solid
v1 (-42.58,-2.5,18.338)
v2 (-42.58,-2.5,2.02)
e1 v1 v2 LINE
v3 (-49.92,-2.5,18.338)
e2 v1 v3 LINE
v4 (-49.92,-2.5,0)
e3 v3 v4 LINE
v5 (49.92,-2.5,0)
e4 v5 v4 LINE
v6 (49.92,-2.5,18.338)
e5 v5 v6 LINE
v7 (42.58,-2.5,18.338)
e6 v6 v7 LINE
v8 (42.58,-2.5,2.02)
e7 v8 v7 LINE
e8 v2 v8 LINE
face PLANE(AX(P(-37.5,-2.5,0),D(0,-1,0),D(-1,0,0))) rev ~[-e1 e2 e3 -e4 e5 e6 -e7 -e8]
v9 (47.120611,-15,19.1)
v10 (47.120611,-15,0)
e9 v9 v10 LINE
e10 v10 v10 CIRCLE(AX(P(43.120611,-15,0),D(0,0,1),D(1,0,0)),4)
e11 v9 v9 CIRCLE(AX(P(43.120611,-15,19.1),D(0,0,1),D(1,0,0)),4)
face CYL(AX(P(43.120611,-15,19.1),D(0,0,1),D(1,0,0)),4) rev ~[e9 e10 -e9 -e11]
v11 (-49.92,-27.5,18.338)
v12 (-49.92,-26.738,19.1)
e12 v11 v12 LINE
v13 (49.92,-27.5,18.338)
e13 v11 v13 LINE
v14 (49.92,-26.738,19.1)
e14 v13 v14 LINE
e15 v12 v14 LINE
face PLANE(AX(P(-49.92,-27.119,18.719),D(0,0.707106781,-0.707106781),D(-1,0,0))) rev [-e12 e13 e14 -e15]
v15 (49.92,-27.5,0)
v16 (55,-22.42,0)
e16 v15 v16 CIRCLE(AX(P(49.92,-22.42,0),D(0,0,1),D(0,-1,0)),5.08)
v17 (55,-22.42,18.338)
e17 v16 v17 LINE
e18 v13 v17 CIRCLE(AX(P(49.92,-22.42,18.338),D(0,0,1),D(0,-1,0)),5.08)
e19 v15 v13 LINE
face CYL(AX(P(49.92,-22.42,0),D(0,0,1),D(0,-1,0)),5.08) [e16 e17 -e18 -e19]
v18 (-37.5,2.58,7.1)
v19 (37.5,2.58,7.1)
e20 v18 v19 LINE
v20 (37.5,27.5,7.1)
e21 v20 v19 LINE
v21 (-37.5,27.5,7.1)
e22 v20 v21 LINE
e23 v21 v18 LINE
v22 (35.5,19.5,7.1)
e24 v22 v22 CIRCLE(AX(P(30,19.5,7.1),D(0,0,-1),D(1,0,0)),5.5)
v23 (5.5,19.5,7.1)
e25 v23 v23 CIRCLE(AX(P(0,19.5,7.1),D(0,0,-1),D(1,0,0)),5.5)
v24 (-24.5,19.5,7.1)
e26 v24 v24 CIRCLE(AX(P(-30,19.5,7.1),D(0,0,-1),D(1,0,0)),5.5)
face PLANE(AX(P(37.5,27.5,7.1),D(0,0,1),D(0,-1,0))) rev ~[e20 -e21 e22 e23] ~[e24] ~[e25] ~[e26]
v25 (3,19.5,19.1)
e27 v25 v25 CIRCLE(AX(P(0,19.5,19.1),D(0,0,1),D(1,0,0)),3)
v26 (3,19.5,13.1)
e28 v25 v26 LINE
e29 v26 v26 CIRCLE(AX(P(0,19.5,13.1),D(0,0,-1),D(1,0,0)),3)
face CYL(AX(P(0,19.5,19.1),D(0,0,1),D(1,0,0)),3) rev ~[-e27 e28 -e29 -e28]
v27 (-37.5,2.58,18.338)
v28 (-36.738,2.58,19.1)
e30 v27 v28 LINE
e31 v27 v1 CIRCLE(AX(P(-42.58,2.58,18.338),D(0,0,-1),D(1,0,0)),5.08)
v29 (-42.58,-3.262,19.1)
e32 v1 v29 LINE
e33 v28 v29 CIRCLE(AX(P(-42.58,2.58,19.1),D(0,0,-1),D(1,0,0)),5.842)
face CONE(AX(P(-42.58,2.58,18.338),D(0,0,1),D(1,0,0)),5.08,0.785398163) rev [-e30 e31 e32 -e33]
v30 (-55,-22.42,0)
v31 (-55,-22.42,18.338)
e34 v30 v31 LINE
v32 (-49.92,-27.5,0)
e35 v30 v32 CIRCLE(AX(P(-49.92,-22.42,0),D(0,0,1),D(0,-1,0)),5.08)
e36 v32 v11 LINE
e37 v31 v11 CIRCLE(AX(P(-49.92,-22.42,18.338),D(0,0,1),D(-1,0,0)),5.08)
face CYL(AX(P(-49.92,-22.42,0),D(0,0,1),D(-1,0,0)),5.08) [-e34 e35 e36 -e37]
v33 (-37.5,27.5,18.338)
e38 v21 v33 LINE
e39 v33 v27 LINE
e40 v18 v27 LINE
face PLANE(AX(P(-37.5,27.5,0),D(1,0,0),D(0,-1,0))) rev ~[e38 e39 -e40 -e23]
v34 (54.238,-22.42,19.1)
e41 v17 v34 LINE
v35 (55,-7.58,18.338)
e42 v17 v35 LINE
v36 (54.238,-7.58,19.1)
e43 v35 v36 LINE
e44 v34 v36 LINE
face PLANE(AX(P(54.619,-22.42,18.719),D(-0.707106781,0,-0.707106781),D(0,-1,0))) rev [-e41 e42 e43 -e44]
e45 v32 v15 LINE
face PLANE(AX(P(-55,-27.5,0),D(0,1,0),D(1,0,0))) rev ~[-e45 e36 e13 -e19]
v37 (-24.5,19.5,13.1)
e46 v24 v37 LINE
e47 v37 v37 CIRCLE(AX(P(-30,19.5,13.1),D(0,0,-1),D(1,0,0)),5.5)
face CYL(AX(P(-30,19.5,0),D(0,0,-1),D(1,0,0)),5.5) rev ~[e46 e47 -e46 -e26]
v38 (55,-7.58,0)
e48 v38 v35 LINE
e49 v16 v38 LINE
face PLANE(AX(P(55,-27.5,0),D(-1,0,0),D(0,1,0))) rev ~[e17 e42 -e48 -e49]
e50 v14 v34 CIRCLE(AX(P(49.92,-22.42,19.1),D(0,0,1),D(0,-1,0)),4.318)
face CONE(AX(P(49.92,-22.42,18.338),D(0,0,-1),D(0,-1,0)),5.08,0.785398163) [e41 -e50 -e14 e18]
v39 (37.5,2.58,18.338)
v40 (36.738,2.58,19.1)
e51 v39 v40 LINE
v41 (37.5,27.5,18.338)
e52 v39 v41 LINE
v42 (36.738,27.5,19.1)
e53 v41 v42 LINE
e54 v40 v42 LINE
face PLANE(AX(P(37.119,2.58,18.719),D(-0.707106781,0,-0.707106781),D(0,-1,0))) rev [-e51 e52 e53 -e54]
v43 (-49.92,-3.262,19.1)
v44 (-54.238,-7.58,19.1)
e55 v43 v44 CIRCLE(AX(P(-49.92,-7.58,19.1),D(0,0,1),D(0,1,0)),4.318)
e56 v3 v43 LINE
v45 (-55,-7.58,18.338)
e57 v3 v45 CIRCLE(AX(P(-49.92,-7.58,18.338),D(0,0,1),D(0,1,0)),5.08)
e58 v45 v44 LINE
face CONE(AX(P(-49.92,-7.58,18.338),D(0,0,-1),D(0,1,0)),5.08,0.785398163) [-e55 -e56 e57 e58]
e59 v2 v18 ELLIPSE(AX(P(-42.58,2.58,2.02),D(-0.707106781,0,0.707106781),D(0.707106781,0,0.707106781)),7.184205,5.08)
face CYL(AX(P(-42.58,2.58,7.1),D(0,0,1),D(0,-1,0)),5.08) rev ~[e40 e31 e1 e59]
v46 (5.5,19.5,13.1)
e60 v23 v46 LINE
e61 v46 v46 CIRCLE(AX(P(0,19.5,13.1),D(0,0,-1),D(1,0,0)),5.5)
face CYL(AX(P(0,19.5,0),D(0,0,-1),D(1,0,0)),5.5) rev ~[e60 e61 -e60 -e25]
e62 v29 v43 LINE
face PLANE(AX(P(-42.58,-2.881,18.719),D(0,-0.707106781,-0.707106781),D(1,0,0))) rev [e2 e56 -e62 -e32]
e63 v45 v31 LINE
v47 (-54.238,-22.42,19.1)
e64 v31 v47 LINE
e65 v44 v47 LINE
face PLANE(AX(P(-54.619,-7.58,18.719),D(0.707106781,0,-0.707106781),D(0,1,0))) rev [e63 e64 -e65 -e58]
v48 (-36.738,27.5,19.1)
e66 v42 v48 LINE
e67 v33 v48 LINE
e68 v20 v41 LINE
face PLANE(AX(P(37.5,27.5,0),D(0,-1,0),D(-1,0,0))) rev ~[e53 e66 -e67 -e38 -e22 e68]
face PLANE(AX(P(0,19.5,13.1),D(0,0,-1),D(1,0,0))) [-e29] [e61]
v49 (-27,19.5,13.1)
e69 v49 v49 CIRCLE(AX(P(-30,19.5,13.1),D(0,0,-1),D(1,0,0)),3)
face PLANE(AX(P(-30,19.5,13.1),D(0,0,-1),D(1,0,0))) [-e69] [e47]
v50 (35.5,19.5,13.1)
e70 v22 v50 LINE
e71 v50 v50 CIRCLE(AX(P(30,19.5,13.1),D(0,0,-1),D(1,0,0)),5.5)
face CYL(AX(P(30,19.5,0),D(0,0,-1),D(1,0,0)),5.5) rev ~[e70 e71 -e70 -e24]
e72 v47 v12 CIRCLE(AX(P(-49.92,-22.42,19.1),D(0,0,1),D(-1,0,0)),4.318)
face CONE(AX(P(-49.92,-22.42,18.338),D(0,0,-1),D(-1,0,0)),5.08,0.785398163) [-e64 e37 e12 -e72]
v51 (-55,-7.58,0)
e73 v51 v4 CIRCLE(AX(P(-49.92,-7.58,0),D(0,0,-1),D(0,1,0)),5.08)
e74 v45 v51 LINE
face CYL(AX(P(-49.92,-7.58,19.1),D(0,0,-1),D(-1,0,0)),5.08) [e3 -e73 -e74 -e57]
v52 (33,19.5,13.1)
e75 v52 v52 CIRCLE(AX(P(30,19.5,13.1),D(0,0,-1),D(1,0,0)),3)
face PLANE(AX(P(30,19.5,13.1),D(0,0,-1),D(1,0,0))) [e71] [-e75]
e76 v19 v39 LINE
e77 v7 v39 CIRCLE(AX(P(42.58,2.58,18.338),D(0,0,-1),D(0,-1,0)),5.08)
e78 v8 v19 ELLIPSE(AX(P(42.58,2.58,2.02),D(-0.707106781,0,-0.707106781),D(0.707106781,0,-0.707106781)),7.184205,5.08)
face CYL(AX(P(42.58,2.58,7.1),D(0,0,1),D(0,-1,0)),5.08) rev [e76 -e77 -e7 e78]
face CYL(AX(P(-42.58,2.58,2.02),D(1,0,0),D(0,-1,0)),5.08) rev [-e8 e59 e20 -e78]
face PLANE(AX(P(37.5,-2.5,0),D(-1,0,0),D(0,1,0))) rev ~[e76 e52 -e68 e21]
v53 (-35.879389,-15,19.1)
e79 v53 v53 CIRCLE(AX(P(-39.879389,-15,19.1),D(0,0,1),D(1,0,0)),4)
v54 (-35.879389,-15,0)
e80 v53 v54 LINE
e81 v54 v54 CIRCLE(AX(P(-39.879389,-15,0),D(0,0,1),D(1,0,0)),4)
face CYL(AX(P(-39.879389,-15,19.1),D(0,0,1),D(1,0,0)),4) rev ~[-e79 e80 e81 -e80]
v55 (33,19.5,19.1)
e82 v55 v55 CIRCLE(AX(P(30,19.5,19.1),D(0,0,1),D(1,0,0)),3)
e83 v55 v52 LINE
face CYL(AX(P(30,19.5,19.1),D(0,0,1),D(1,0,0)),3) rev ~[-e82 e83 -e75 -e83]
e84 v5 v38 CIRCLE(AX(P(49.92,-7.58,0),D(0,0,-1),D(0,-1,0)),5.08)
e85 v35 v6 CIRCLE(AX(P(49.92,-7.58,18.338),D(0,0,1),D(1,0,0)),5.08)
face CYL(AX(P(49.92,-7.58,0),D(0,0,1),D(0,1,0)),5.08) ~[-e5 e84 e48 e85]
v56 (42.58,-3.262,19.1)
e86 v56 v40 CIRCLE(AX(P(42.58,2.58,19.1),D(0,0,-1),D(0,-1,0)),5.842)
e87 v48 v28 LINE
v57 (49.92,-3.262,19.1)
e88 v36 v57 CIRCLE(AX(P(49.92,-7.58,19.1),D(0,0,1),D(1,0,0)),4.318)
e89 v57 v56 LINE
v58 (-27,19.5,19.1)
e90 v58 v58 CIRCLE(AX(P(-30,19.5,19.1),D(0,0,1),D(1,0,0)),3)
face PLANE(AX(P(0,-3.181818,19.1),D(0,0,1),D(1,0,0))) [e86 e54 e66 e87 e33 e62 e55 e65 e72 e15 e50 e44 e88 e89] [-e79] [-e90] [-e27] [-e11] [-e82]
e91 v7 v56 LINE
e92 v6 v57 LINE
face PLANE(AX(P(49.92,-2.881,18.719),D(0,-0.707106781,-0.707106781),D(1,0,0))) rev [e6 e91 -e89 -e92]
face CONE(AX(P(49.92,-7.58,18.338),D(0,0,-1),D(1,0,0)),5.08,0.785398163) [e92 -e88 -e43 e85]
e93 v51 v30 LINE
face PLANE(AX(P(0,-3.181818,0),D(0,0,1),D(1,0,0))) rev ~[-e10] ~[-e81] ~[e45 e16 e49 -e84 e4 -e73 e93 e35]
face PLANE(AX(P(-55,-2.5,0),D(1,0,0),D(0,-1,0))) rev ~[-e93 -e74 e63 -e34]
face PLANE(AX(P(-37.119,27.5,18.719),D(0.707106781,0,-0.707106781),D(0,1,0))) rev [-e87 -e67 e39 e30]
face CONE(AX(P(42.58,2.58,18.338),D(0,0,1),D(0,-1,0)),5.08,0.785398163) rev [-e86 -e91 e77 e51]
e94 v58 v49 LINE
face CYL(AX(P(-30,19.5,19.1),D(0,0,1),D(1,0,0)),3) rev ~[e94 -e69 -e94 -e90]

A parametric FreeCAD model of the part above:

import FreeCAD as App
import Part
import Sketcher


def edges_at(feature, points):
    """Names of the edges that pass closest to the given points."""
    edges = feature.Shape.Edges
    near = lambda p: min(range(len(edges)), key=lambda i: edges[i].distToShape(Part.Vertex(*p))[0])
    return sorted({f"Edge{near(p) + 1}" for p in points})


def add_polygon(sketch, points):
    """Adds a closed chain of lines whose ends are joined by coincident constraints."""
    first, n = sketch.GeometryCount, len(points)
    for a, b in zip(points, points[1:] + points[:1]):
        sketch.addGeometry(Part.LineSegment(App.Vector(*a, 0), App.Vector(*b, 0)), False)
    for i in range(n):
        sketch.addConstraint(Sketcher.Constraint("Coincident", first + i, 2, first + (i + 1) % n, 1))

doc = App.newDocument("Part")
body = doc.addObject("PartDesign::Body", "Body")

sketch1 = doc.addObject("Sketcher::SketchObject", "Sketch")
body.addObject(sketch1)
sketch1.AttachmentSupport = (doc.XY_Plane, [""])
sketch1.MapMode = "FlatFace"
add_polygon(sketch1, [(-55, -2), (-55, -28), (55, -28), (55, -2), (38, -2), (38, 28), (-38, 28), (-38, -2)])
sketch1.addConstraint([
    Sketcher.Constraint("Vertical", 0),
    Sketcher.Constraint("Horizontal", 1),
    Sketcher.Constraint("Vertical", 2),
    Sketcher.Constraint("Horizontal", 3),
    Sketcher.Constraint("Vertical", 4),
    Sketcher.Constraint("Horizontal", 5),
    Sketcher.Constraint("Vertical", 6),
    Sketcher.Constraint("Horizontal", 7),
    Sketcher.Constraint("Symmetric", 3, 2, 6, 2, -2),
    Sketcher.Constraint("Equal", 3, 7),
    Sketcher.Constraint("DistanceX", 1, 1, 1, 2, 110.0),
    Sketcher.Constraint("DistanceX", 5, 2, 5, 1, 75.0),
    Sketcher.Constraint("DistanceY", 0, 2, 0, 1, 25.0),
    Sketcher.Constraint("DistanceY", 4, 1, 4, 2, 30.0),
    Sketcher.Constraint("DistanceY", 0, 2, -1, 1, 27.5),
])
pad1 = doc.addObject("PartDesign::Pad", "Pad")
body.addObject(pad1)
pad1.Profile = sketch1
pad1.Length = 19.1

sketch2 = doc.addObject("Sketcher::SketchObject", "Sketch001")
body.addObject(sketch2)
sketch2.AttachmentSupport = (doc.XY_Plane, [""])
sketch2.MapMode = "FlatFace"
sketch2.AttachmentOffset = App.Placement(App.Vector(0, 0, 19.1), App.Rotation())
sketch2.addGeometry([
    Part.Circle(App.Vector(-30, 19.5, 0), App.Vector(0, 0, 1), 3),
    Part.Circle(App.Vector(0, 19.5, 0), App.Vector(0, 0, 1), 3),
    Part.Circle(App.Vector(30, 19.5, 0), App.Vector(0, 0, 1), 3),
], False)
sketch2.addConstraint([
    Sketcher.Constraint("Equal", 0, 1),
    Sketcher.Constraint("Equal", 1, 2),
    Sketcher.Constraint("Symmetric", 0, 3, 2, 3, -2),
    Sketcher.Constraint("PointOnObject", 1, 3, -2),
    Sketcher.Constraint("Horizontal", 0, 3, 1, 3),
    Sketcher.Constraint("Diameter", 0, 6.0),
    Sketcher.Constraint("DistanceX", 0, 3, -1, 1, 30.0),
    Sketcher.Constraint("DistanceY", -1, 1, 0, 3, 19.5),
])
pocket1 = doc.addObject("PartDesign::Pocket", "Pocket")
body.addObject(pocket1)
pocket1.Profile = sketch2
pocket1.Type = "ThroughAll"

sketch3 = doc.addObject("Sketcher::SketchObject", "Sketch002")
body.addObject(sketch3)
sketch3.AttachmentSupport = (doc.XY_Plane, [""])
sketch3.MapMode = "FlatFace"
sketch3.addGeometry([
    Part.Circle(App.Vector(-30, 19.5, 0), App.Vector(0, 0, 1), 5.5),
    Part.Circle(App.Vector(-30, 19.5, 0), App.Vector(0, 0, 1), 3),
    Part.Circle(App.Vector(0, 19.5, 0), App.Vector(0, 0, 1), 5.5),
    Part.Circle(App.Vector(0, 19.5, 0), App.Vector(0, 0, 1), 3),
    Part.Circle(App.Vector(30, 19.5, 0), App.Vector(0, 0, 1), 5.5),
    Part.Circle(App.Vector(30, 19.5, 0), App.Vector(0, 0, 1), 3),
], False)
sketch3.addConstraint([
    Sketcher.Constraint("Coincident", 1, 3, 0, 3),
    Sketcher.Constraint("Coincident", 3, 3, 2, 3),
    Sketcher.Constraint("Coincident", 5, 3, 4, 3),
    Sketcher.Constraint("Equal", 0, 2),
    Sketcher.Constraint("Equal", 1, 3),
    Sketcher.Constraint("Equal", 2, 4),
    Sketcher.Constraint("Equal", 3, 5),
    Sketcher.Constraint("Symmetric", 0, 3, 4, 3, -2),
    Sketcher.Constraint("PointOnObject", 2, 3, -2),
    Sketcher.Constraint("Horizontal", 1, 3, 2, 3),
    Sketcher.Constraint("Diameter", 0, 11.0),
    Sketcher.Constraint("Diameter", 1, 6.0),
    Sketcher.Constraint("DistanceX", 0, 3, -1, 1, 30.0),
    Sketcher.Constraint("DistanceY", -1, 1, 0, 3, 19.5),
])
pocket2 = doc.addObject("PartDesign::Pocket", "Pocket001")
body.addObject(pocket2)
pocket2.Profile = sketch3
pocket2.Length = 13.1
pocket2.Reversed = True

sketch4 = doc.addObject("Sketcher::SketchObject", "Sketch003")
body.addObject(sketch4)
sketch4.AttachmentSupport = (doc.YZ_Plane, [""])
sketch4.MapMode = "FlatFace"
sketch4.AttachmentOffset = App.Placement(App.Vector(0, 0, 37.5), App.Rotation())
add_polygon(sketch4, [(28, 7), (-2, 7), (-2, 0), (28, 0)])
sketch4.addConstraint([
    Sketcher.Constraint("Horizontal", 0),
    Sketcher.Constraint("Vertical", 1),
    Sketcher.Constraint("Horizontal", 2),
    Sketcher.Constraint("Vertical", 3),
    Sketcher.Constraint("PointOnObject", 1, 2, -1),
    Sketcher.Constraint("DistanceX", 0, 2, 0, 1, 30.0),
    Sketcher.Constraint("DistanceY", 1, 2, 1, 1, 7.1),
    Sketcher.Constraint("DistanceX", 0, 2, -1, 1, 2.5),
])
pocket3 = doc.addObject("PartDesign::Pocket", "Pocket002")
body.addObject(pocket3)
pocket3.Profile = sketch4
pocket3.Type = "ThroughAll"

sketch5 = doc.addObject("Sketcher::SketchObject", "Sketch004")
body.addObject(sketch5)
sketch5.AttachmentSupport = (doc.XY_Plane, [""])
sketch5.MapMode = "FlatFace"
sketch5.AttachmentOffset = App.Placement(App.Vector(0, 0, 19.1), App.Rotation())
sketch5.addGeometry([
    Part.Circle(App.Vector(-39.9, -15, 0), App.Vector(0, 0, 1), 4),
    Part.Circle(App.Vector(43.1, -15, 0), App.Vector(0, 0, 1), 4),
], False)
sketch5.addConstraint([
    Sketcher.Constraint("Equal", 0, 1),
    Sketcher.Constraint("Horizontal", 0, 3, 1, 3),
    Sketcher.Constraint("Diameter", 0, 8.0),
    Sketcher.Constraint("DistanceY", 0, 3, -1, 1, 15.0),
    Sketcher.Constraint("DistanceX", 0, 3, 1, 3, 83.0),
    Sketcher.Constraint("DistanceX", 0, 3, -1, 1, 39.879389),
])
pocket4 = doc.addObject("PartDesign::Pocket", "Pocket003")
body.addObject(pocket4)
pocket4.Profile = sketch5
pocket4.Type = "ThroughAll"
doc.recompute()

fillet = doc.addObject("PartDesign::Fillet", "Fillet")
body.addObject(fillet)
fillet.Base = (pocket4, edges_at(pocket4, [
    (55, -2.5, 9.55),
    (37.5, -2.5, 13.1),
    (-37.5, -2.5, 13.1),
    (-55, -2.5, 9.55),
    (55, -27.5, 9.55),
    (-55, -27.5, 9.55),
]))
fillet.Radius = 5.08
doc.recompute()

fillet2 = doc.addObject("PartDesign::Fillet", "Fillet001")
body.addObject(fillet2)
fillet2.Base = (fillet, edges_at(fillet, [(0, -2.5, 7.1)]))
fillet2.Radius = 5.08
doc.recompute()

chamfer = doc.addObject("PartDesign::Chamfer", "Chamfer")
body.addObject(chamfer)
chamfer.Base = (fillet2, edges_at(fillet2, [(0, -27.5, 19.1)]))
chamfer.Size = 0.762

doc.recompute()
